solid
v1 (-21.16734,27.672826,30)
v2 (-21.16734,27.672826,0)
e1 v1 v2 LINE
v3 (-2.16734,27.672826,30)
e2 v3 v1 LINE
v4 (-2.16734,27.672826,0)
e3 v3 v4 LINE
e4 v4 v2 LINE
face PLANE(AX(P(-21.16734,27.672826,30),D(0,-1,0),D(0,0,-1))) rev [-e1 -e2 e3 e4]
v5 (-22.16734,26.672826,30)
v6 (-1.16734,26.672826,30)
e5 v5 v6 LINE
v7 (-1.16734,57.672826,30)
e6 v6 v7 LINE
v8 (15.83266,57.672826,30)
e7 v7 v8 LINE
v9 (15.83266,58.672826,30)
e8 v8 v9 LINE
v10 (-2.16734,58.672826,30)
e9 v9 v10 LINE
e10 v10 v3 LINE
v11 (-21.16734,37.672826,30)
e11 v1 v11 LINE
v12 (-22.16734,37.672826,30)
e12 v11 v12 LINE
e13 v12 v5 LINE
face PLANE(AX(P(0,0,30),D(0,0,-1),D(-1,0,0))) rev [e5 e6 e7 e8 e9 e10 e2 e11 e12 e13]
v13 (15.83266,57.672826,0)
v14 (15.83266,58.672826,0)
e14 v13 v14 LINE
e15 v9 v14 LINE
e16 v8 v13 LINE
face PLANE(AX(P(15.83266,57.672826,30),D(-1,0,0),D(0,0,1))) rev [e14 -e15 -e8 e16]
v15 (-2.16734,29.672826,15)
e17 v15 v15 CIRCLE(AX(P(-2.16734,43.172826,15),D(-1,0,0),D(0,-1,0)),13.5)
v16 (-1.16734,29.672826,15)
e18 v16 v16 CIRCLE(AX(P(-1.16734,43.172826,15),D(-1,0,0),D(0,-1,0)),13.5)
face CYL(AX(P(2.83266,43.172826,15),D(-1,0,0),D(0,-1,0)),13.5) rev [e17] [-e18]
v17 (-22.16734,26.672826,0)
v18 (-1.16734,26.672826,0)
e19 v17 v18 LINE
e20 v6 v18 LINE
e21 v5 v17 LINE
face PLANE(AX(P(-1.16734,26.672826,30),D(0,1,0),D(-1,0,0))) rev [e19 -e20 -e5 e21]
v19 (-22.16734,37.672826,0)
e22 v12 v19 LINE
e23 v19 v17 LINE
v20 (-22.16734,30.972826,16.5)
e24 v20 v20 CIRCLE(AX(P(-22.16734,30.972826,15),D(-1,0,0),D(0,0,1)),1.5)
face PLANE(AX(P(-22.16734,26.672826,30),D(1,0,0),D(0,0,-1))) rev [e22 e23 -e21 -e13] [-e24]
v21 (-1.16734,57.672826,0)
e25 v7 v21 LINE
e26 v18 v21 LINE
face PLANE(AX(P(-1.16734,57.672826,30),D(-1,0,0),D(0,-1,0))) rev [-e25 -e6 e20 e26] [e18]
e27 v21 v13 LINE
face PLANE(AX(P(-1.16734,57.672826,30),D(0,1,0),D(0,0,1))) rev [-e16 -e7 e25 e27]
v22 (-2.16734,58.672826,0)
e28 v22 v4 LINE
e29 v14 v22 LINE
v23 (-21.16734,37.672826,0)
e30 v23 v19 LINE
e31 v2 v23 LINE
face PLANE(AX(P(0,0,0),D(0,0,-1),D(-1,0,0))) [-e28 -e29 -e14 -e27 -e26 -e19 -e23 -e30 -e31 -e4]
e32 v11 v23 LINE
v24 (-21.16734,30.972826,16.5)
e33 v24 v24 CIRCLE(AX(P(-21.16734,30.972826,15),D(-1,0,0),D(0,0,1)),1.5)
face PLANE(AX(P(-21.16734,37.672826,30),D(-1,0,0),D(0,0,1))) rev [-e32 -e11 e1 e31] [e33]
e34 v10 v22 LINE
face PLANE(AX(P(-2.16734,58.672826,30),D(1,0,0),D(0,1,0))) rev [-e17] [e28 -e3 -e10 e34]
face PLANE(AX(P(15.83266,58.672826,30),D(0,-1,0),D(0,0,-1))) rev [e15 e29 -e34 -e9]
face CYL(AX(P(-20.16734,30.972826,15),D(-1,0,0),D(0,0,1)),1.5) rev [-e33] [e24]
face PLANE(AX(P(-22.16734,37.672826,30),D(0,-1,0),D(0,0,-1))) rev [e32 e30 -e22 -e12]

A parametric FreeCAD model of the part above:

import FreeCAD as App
import Part
import Sketcher

V = App.Vector

doc = App.newDocument("Part")
params = doc.addObject("Spreadsheet::Sheet", "Params")
for row, (alias, value) in enumerate([
    ("sketch1_width", "1 mm"),
    ("sketch1_width2", "21 mm"),
    ("sketch1_width3", "17 mm"),
    ("sketch1_width4", "18 mm"),
    ("sketch1_height", "10 mm"),
    ("pad1_length", "30 mm"),
    ("sketch2_diameter", "3 mm"),
    ("pocket1_length", "2 mm"),
    ("sketch3_diameter", "27 mm"),
    ("pocket2_length", "5 mm"),
], start=1):
    params.set(f"A{row}", alias)
    params.set(f"B{row}", "=" + value)
    params.setAlias(f"B{row}", alias)

body = doc.addObject("PartDesign::Body", "Body")

sketch1 = doc.addObject("Sketcher::SketchObject", "Sketch")
body.addObject(sketch1)
sketch1.AttachmentSupport = (doc.XY_Plane, [""])
sketch1.MapMode = "FlatFace"
sketch1.addGeometry([
    Part.LineSegment(V(-21.2, 27.7, 0), V(-21.2, 37.7, 0)),
    Part.LineSegment(V(-21.2, 37.7, 0), V(-22.2, 37.7, 0)),
    Part.LineSegment(V(-22.2, 37.7, 0), V(-22.2, 26.7, 0)),
    Part.LineSegment(V(-22.2, 26.7, 0), V(-1.2, 26.7, 0)),
    Part.LineSegment(V(-1.2, 26.7, 0), V(-1.2, 57.7, 0)),
    Part.LineSegment(V(-1.2, 57.7, 0), V(15.8, 57.7, 0)),
    Part.LineSegment(V(15.8, 57.7, 0), V(15.8, 58.7, 0)),
    Part.LineSegment(V(15.8, 58.7, 0), V(-2.2, 58.7, 0)),
    Part.LineSegment(V(-2.2, 58.7, 0), V(-2.2, 27.7, 0)),
    Part.LineSegment(V(-2.2, 27.7, 0), V(-21.2, 27.7, 0)),
], False)
sketch1.addConstraint([
    Sketcher.Constraint("Coincident", 0, 2, 1, 1),
    Sketcher.Constraint("Coincident", 1, 2, 2, 1),
    Sketcher.Constraint("Coincident", 2, 2, 3, 1),
    Sketcher.Constraint("Coincident", 3, 2, 4, 1),
    Sketcher.Constraint("Coincident", 4, 2, 5, 1),
    Sketcher.Constraint("Coincident", 5, 2, 6, 1),
    Sketcher.Constraint("Coincident", 6, 2, 7, 1),
    Sketcher.Constraint("Coincident", 7, 2, 8, 1),
    Sketcher.Constraint("Coincident", 8, 2, 9, 1),
    Sketcher.Constraint("Coincident", 9, 2, 0, 1),
    Sketcher.Constraint("Vertical", 0),
    Sketcher.Constraint("Horizontal", 1),
    Sketcher.Constraint("Vertical", 2),
    Sketcher.Constraint("Horizontal", 3),
    Sketcher.Constraint("Vertical", 4),
    Sketcher.Constraint("Horizontal", 5),
    Sketcher.Constraint("Vertical", 6),
    Sketcher.Constraint("Horizontal", 7),
    Sketcher.Constraint("Vertical", 8),
    Sketcher.Constraint("Horizontal", 9),
    Sketcher.Constraint("Equal", 1, 6),
    Sketcher.Constraint("Equal", 4, 8),
    Sketcher.Constraint("DistanceX", 1, 2, 1, 1, 1.0),
    Sketcher.Constraint("DistanceX", 3, 1, 3, 2, 21.0),
    Sketcher.Constraint("DistanceX", 5, 1, 5, 2, 17.0),
    Sketcher.Constraint("DistanceX", 7, 2, 7, 1, 18.0),
    Sketcher.Constraint("DistanceY", 0, 1, 0, 2, 10.0),
    Sketcher.Constraint("DistanceY", 4, 1, 4, 2, 31.0),
    Sketcher.Constraint("DistanceX", 0, 2, -1, 1, 21.16734),
    Sketcher.Constraint("DistanceY", -1, 1, 0, 2, 37.672826),
])
sketch1.setExpression("Constraints[22]", "Params.sketch1_width")
sketch1.setExpression("Constraints[23]", "Params.sketch1_width2")
sketch1.setExpression("Constraints[24]", "Params.sketch1_width3")
sketch1.setExpression("Constraints[25]", "Params.sketch1_width4")
sketch1.setExpression("Constraints[26]", "Params.sketch1_height")
pad1 = doc.addObject("PartDesign::Pad", "Pad")
body.addObject(pad1)
pad1.Profile = sketch1
pad1.setExpression("Length", "Params.pad1_length")

sketch2 = doc.addObject("Sketcher::SketchObject", "Sketch001")
body.addObject(sketch2)
sketch2.AttachmentSupport = (doc.YZ_Plane, [""])
sketch2.MapMode = "FlatFace"
sketch2.AttachmentOffset = App.Placement(V(0, 0, -22.16734), App.Rotation())
sketch2.addGeometry(Part.Circle(V(31, 15, 0), V(0, 0, 1), 1.5), False)
sketch2.addConstraint([
    Sketcher.Constraint("Diameter", 0, 3.0),
    Sketcher.Constraint("DistanceY", -1, 1, 0, 3, 15.0),
    Sketcher.Constraint("DistanceX", -1, 1, 0, 3, 30.972826),
])
sketch2.setExpression("Constraints[0]", "Params.sketch2_diameter")
pocket1 = doc.addObject("PartDesign::Pocket", "Pocket")
body.addObject(pocket1)
pocket1.Profile = sketch2
pocket1.setExpression("Length", "Params.pocket1_length")
pocket1.Reversed = True

sketch3 = doc.addObject("Sketcher::SketchObject", "Sketch002")
body.addObject(sketch3)
sketch3.AttachmentSupport = (doc.YZ_Plane, [""])
sketch3.MapMode = "FlatFace"
sketch3.AttachmentOffset = App.Placement(V(0, 0, -2.16734), App.Rotation())
sketch3.addGeometry(Part.Circle(V(43, 15, 0), V(0, 0, 1), 14), False)
sketch3.addConstraint([
    Sketcher.Constraint("Diameter", 0, 27.0),
    Sketcher.Constraint("DistanceY", -1, 1, 0, 3, 15.0),
    Sketcher.Constraint("DistanceX", -1, 1, 0, 3, 43.172826),
])
sketch3.setExpression("Constraints[0]", "Params.sketch3_diameter")
pocket2 = doc.addObject("PartDesign::Pocket", "Pocket001")
body.addObject(pocket2)
pocket2.Profile = sketch3
pocket2.setExpression("Length", "Params.pocket2_length")
pocket2.Reversed = True

doc.recompute()
